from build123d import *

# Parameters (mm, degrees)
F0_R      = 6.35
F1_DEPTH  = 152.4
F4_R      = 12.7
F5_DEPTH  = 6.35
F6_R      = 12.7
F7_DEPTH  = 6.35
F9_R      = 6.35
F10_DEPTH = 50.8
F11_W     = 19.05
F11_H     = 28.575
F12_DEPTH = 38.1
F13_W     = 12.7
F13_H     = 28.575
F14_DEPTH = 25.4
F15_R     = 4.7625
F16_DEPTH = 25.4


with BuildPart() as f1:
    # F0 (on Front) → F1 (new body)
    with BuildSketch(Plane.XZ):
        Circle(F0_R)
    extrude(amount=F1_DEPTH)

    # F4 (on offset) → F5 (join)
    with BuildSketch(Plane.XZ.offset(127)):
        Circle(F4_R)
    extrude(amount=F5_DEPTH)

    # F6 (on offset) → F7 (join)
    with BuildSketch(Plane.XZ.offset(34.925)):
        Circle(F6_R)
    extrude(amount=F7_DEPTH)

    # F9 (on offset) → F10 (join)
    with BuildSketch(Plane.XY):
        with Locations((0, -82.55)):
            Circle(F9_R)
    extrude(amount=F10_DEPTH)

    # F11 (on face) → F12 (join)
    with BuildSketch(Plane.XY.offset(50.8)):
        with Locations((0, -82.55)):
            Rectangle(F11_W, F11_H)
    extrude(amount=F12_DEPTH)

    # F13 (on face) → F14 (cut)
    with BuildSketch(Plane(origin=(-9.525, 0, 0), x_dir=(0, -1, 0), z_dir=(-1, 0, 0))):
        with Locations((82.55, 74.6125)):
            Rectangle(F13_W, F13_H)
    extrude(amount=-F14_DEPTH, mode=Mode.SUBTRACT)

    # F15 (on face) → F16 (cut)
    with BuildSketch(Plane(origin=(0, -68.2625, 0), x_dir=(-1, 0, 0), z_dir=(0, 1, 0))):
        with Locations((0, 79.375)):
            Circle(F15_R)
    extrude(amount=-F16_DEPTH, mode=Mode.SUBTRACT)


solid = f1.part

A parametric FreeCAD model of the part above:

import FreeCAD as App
import Part
import Sketcher
Q = App.Units.Quantity


def add_polygon(sketch, points):
    """Adds a closed chain of lines whose ends are joined by coincident constraints."""
    first, n = sketch.GeometryCount, len(points)
    for a, b in zip(points, points[1:] + points[:1]):
        sketch.addGeometry(Part.LineSegment(App.Vector(*a, 0), App.Vector(*b, 0)), False)
    for i in range(n):
        sketch.addConstraint(Sketcher.Constraint("Coincident", first + i, 2, first + (i + 1) % n, 1))

doc = App.newDocument("Part")
body = doc.addObject("PartDesign::Body", "Body")

sketch1 = body.newObject("Sketcher::SketchObject", "Sketch")
sketch1.AttachmentSupport = (doc.getObject("XZ_Plane"), [""])
sketch1.MapMode = "FlatFace"
sketch1.addGeometry(Part.Circle(App.Vector(0, 0, 0), App.Vector(0, 0, 1), 6), False)
sketch1.addConstraint([
    Sketcher.Constraint("Coincident", 0, 3, -1, 1),
    Sketcher.Constraint("Diameter", 0, Q("0.5 in")),
])
pad1 = body.newObject("PartDesign::Pad", "Pad")
pad1.Profile = sketch1
pad1.Length = Q("6 in")

sketch2 = body.newObject("Sketcher::SketchObject", "Sketch001")
sketch2.AttachmentSupport = (doc.getObject("XZ_Plane"), [""])
sketch2.MapMode = "FlatFace"
sketch2.AttachmentOffset = App.Placement(App.Vector(0, 0, 5 * 25.4), App.Rotation())
sketch2.addGeometry(Part.Circle(App.Vector(0, 0, 0), App.Vector(0, 0, 1), 13), False)
sketch2.addConstraint([
    Sketcher.Constraint("Coincident", 0, 3, -1, 1),
    Sketcher.Constraint("Diameter", 0, Q("1 in")),
])
pad2 = body.newObject("PartDesign::Pad", "Pad001")
pad2.Profile = sketch2
pad2.Length = Q("0.25 in")

sketch3 = body.newObject("Sketcher::SketchObject", "Sketch002")
sketch3.AttachmentSupport = (doc.getObject("XZ_Plane"), [""])
sketch3.MapMode = "FlatFace"
sketch3.AttachmentOffset = App.Placement(App.Vector(0, 0, 1.375 * 25.4), App.Rotation())
sketch3.addGeometry(Part.Circle(App.Vector(0, 0, 0), App.Vector(0, 0, 1), 13), False)
sketch3.addConstraint([
    Sketcher.Constraint("Coincident", 0, 3, -1, 1),
    Sketcher.Constraint("Diameter", 0, Q("1 in")),
])
pad3 = body.newObject("PartDesign::Pad", "Pad002")
pad3.Profile = sketch3
pad3.Length = Q("0.25 in")

sketch4 = body.newObject("Sketcher::SketchObject", "Sketch003")
sketch4.AttachmentSupport = (doc.getObject("XY_Plane"), [""])
sketch4.MapMode = "FlatFace"
sketch4.addGeometry(Part.Circle(App.Vector(0, -83, 0), App.Vector(0, 0, 1), 6), False)
sketch4.addConstraint([
    Sketcher.Constraint("PointOnObject", 0, 3, -2),
    Sketcher.Constraint("Diameter", 0, Q("0.5 in")),
    Sketcher.Constraint("DistanceY", 0, 3, -1, 1, Q("3.25 in")),
])
pad4 = body.newObject("PartDesign::Pad", "Pad003")
pad4.Profile = sketch4
pad4.Length = Q("2 in")

sketch5 = body.newObject("Sketcher::SketchObject", "Sketch004")
sketch5.AttachmentSupport = (doc.getObject("XY_Plane"), [""])
sketch5.MapMode = "FlatFace"
sketch5.AttachmentOffset = App.Placement(App.Vector(0, 0, 2 * 25.4), App.Rotation())
add_polygon(sketch5, [(-10, -68), (-10, -97), (10, -97), (10, -68)])
sketch5.addConstraint([
    Sketcher.Constraint("Vertical", 0),
    Sketcher.Constraint("Horizontal", 1),
    Sketcher.Constraint("Vertical", 2),
    Sketcher.Constraint("Horizontal", 3),
    Sketcher.Constraint("DistanceX", 1, 1, 1, 2, Q("0.75 in")),
    Sketcher.Constraint("DistanceY", 0, 2, 0, 1, Q("1.125 in")),
    Sketcher.Constraint("DistanceX", 0, 2, -1, 1, Q("0.375 in")),
    Sketcher.Constraint("DistanceY", 0, 2, -1, 1, Q("3.8125 in")),
])
pad5 = body.newObject("PartDesign::Pad", "Pad004")
pad5.Profile = sketch5
pad5.Length = Q("1.5 in")

sketch6 = body.newObject("Sketcher::SketchObject", "Sketch005")
sketch6.AttachmentSupport = (doc.getObject("YZ_Plane"), [""])
sketch6.MapMode = "FlatFace"
sketch6.AttachmentOffset = App.Placement(App.Vector(0, 0, -0.375 * 25.4), App.Rotation())
add_polygon(sketch6, [(-76, 89), (-76, 60), (-89, 60), (-89, 89)])
sketch6.addConstraint([
    Sketcher.Constraint("Vertical", 0),
    Sketcher.Constraint("Horizontal", 1),
    Sketcher.Constraint("Vertical", 2),
    Sketcher.Constraint("Horizontal", 3),
    Sketcher.Constraint("DistanceX", 1, 2, 1, 1, Q("0.5 in")),
    Sketcher.Constraint("DistanceX", 0, 2, -1, 1, Q("3 in")),
    Sketcher.Constraint("DistanceY", -1, 1, 2, 2, Q("3.5 in")),
    Sketcher.Constraint("DistanceY", 0, 2, 0, 1, Q("1.125 in")),
])
pocket1 = body.newObject("PartDesign::Pocket", "Pocket")
pocket1.Profile = sketch6
pocket1.Length = Q("1 in")
pocket1.Reversed = True

sketch7 = body.newObject("Sketcher::SketchObject", "Sketch006")
sketch7.AttachmentSupport = (doc.getObject("XZ_Plane"), [""])
sketch7.MapMode = "FlatFace"
sketch7.AttachmentOffset = App.Placement(App.Vector(0, 0, 2.6875 * 25.4), App.Rotation())
sketch7.addGeometry(Part.Circle(App.Vector(0, 79.4, 0), App.Vector(0, 0, 1), 4.8), False)
sketch7.addConstraint([
    Sketcher.Constraint("PointOnObject", 0, 3, -2),
    Sketcher.Constraint("Diameter", 0, Q("0.375 in")),
    Sketcher.Constraint("DistanceY", -1, 1, 0, 3, Q("3.125 in")),
])
pocket2 = body.newObject("PartDesign::Pocket", "Pocket001")
pocket2.Profile = sketch7
pocket2.Length = Q("1 in")
pocket2.Reversed = True

doc.recompute()
